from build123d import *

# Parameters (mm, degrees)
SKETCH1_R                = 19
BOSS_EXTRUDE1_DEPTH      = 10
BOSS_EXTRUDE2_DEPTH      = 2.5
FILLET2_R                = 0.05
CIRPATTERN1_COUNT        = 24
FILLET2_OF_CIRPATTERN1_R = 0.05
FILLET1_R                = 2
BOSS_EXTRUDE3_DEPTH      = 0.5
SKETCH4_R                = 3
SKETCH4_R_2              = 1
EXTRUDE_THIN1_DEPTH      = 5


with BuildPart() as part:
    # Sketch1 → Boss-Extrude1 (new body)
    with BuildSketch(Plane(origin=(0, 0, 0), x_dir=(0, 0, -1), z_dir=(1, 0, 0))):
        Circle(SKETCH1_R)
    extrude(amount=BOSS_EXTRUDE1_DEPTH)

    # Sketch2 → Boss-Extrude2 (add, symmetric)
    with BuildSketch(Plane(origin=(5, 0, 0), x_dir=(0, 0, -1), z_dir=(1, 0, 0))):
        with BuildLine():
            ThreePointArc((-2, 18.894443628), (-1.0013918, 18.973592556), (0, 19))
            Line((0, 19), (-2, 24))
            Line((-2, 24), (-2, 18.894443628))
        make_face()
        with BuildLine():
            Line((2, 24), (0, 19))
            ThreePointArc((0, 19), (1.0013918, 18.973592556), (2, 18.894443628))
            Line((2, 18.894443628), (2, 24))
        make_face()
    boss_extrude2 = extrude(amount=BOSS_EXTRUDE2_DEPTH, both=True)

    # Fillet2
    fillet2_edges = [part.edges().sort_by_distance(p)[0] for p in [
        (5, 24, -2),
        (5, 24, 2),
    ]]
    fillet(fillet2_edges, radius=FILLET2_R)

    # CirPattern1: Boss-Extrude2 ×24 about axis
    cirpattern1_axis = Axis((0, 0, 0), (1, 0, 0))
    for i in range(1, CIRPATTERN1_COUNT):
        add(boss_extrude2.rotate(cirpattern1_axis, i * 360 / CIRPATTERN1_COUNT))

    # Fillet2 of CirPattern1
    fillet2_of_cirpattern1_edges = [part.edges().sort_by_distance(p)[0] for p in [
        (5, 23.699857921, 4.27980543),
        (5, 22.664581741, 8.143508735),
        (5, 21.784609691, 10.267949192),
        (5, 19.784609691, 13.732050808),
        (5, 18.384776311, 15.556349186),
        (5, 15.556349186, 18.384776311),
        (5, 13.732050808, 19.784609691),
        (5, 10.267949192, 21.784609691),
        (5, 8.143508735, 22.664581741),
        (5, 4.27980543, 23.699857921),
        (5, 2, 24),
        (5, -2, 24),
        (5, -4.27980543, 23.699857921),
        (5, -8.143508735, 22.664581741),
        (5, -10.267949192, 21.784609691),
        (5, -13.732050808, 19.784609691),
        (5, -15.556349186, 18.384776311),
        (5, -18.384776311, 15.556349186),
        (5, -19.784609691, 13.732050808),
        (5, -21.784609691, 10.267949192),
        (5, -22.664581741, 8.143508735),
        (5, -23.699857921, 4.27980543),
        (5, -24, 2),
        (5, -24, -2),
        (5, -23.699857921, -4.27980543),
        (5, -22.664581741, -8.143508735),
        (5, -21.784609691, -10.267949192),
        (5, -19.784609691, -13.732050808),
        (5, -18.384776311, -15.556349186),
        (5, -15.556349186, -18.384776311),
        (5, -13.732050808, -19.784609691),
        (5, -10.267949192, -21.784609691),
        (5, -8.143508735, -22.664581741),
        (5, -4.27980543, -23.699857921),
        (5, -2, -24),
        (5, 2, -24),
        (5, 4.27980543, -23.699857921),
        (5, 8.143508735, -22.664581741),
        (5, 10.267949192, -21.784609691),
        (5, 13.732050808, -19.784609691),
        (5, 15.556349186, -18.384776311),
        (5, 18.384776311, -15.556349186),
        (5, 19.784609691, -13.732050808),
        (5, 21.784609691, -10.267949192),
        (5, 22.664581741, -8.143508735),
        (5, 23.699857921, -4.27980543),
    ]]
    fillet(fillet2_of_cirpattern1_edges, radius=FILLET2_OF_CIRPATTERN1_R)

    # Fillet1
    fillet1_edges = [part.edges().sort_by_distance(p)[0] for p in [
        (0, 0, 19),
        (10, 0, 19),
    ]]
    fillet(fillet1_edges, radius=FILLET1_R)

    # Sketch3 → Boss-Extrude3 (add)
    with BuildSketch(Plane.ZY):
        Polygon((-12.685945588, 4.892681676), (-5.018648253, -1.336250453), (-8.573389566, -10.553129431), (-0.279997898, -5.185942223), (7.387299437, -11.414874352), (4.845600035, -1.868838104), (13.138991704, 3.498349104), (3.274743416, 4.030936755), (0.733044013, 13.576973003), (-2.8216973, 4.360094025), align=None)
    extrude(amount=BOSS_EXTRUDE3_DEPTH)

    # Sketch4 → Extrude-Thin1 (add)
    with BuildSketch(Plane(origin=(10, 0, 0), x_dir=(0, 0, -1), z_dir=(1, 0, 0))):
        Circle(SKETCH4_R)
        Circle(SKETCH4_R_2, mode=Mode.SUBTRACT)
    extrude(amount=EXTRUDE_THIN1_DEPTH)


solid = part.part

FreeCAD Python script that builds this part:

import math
import FreeCAD as App
import Part
import Sketcher

V = App.Vector


def edges_at(feature, points):
    """Names of the edges that pass closest to the given points."""
    edges = feature.Shape.Edges
    near = lambda p: min(range(len(edges)), key=lambda i: edges[i].distToShape(Part.Vertex(*p))[0])
    return sorted({f"Edge{near(p) + 1}" for p in points})

doc = App.newDocument("Part")
body = doc.addObject("PartDesign::Body", "Body")

# Sketch on YZ plane
sketch1 = body.newObject("Sketcher::SketchObject", "Sketch")
sketch1.AttachmentSupport = (doc.getObject("YZ_Plane"), [""])
sketch1.MapMode = "FlatFace"
sketch1.addGeometry(Part.Circle(V(0, 0, 0), V(0, 0, 1), 19), False)
sketch1.addConstraint([
    Sketcher.Constraint("Coincident", 0, 3, -1, 1),
    Sketcher.Constraint("Diameter", 0, 38.0),
])
pad1 = body.newObject("PartDesign::Pad", "Pad")
pad1.Profile = sketch1
pad1.Length = 10

# Sketch on YZ plane
sketch2 = body.newObject("Sketcher::SketchObject", "Sketch001")
sketch2.AttachmentSupport = (doc.getObject("YZ_Plane"), [""])
sketch2.MapMode = "FlatFace"
sketch2.AttachmentOffset = App.Placement(V(0, 0, 5), App.Rotation())
sketch2.addGeometry([
    Part.ArcOfCircle(Part.Circle(V(0, 0, 0), V(0, 0, 1), 19), math.radians(0), math.radians(6.04)),  # 0
    Part.LineSegment(V(19, 0, 0), V(24, 2, 0)),  # 1
    Part.LineSegment(V(24, 2, 0), V(18.9, 2, 0)),  # 2
    Part.LineSegment(V(24, -2, 0), V(19, 0, 0)),  # 3
    Part.ArcOfCircle(Part.Circle(V(0, 0, 0), V(0, 0, 1), 19), math.radians(-6.04), math.radians(0)),  # 4
    Part.LineSegment(V(18.9, -2, 0), V(24, -2, 0)),  # 5
], False)
sketch2.addConstraint([
    Sketcher.Constraint("Coincident", 0, 1, 1, 1),
    Sketcher.Constraint("Coincident", 1, 2, 2, 1),
    Sketcher.Constraint("Coincident", 2, 2, 0, 2),
    Sketcher.Constraint("Coincident", 3, 2, 4, 2),
    Sketcher.Constraint("Coincident", 4, 1, 5, 1),
    Sketcher.Constraint("Coincident", 5, 2, 3, 1),
    Sketcher.Constraint("Horizontal", 2),
    Sketcher.Constraint("Horizontal", 5),
    Sketcher.Constraint("Coincident", 0, 3, -1, 1),
    Sketcher.Constraint("Coincident", 4, 3, -1, 1),
    Sketcher.Constraint("Coincident", 3, 2, 0, 1),
    Sketcher.Constraint("Symmetric", 1, 2, 5, 2, -1),
    Sketcher.Constraint("PointOnObject", 0, 1, -1),
    Sketcher.Constraint("Radius", 0, 19.0),
    Sketcher.Constraint("DistanceX", -1, 1, 1, 2, 24.0),
    Sketcher.Constraint("DistanceY", -1, 1, 1, 2, 2.0),
])
pad2 = body.newObject("PartDesign::Pad", "Pad001")
pad2.Profile = sketch2
pad2.Length = 5
pad2.Midplane = True
doc.recompute()

fillet = body.newObject("PartDesign::Fillet", "Fillet")
fillet.Base = (pad2, edges_at(pad2, [(5, 24, -2), (5, 24, 2)]))
fillet.Radius = 0.05
doc.recompute()

polarpattern = body.newObject("PartDesign::PolarPattern", "PolarPattern")
polarpattern.Originals = [pad2]
polarpattern.Axis = (doc.getObject("X_Axis"), [""])
polarpattern.Angle = 360
polarpattern.Occurrences = 24
body.Tip = polarpattern
doc.recompute()

fillet2 = body.newObject("PartDesign::Fillet", "Fillet001")
fillet2.Base = (polarpattern, edges_at(polarpattern, [
    (5, 23.7, 4.28),
    (5, 22.665, 8.144),
    (5, 21.785, 10.268),
    (5, 19.785, 13.732),
    (5, 18.385, 15.556),
    (5, 15.556, 18.385),
    (5, 13.732, 19.785),
    (5, 10.268, 21.785),
    (5, 8.144, 22.665),
    (5, 4.28, 23.7),
    (5, 2, 24),
    (5, -2, 24),
    (5, -4.28, 23.7),
    (5, -8.144, 22.665),
    (5, -10.268, 21.785),
    (5, -13.732, 19.785),
    (5, -15.556, 18.385),
    (5, -18.385, 15.556),
    (5, -19.785, 13.732),
    (5, -21.785, 10.268),
    (5, -22.665, 8.144),
    (5, -23.7, 4.28),
    (5, -24, 2),
    (5, -24, -2),
    (5, -23.7, -4.28),
    (5, -22.665, -8.144),
    (5, -21.785, -10.268),
    (5, -19.785, -13.732),
    (5, -18.385, -15.556),
    (5, -15.556, -18.385),
    (5, -13.732, -19.785),
    (5, -10.268, -21.785),
    (5, -8.144, -22.665),
    (5, -4.28, -23.7),
    (5, -2, -24),
    (5, 2, -24),
    (5, 4.28, -23.7),
    (5, 8.144, -22.665),
    (5, 10.268, -21.785),
    (5, 13.732, -19.785),
    (5, 15.556, -18.385),
    (5, 18.385, -15.556),
    (5, 19.785, -13.732),
    (5, 21.785, -10.268),
    (5, 22.665, -8.144),
    (5, 23.7, -4.28),
]))
fillet2.Radius = 0.05
doc.recompute()

fillet3 = body.newObject("PartDesign::Fillet", "Fillet002")
fillet3.Base = (fillet2, edges_at(fillet2, [(0, 0, 19), (10, 0, 19)]))
fillet3.Radius = 2

# Sketch on YZ plane
sketch3 = body.newObject("Sketcher::SketchObject", "Sketch002")
sketch3.AttachmentSupport = (doc.getObject("YZ_Plane"), [""])
sketch3.MapMode = "FlatFace"
sketch3.addGeometry([
    Part.LineSegment(V(5, -13, 0), V(-1, -5, 0)),  # 0
    Part.LineSegment(V(-1, -5, 0), V(-11, -9, 0)),  # 1
    Part.LineSegment(V(-11, -9, 0), V(-5, 0, 0)),  # 2
    Part.LineSegment(V(-5, 0, 0), V(-11, 7, 0)),  # 3
    Part.LineSegment(V(-11, 7, 0), V(-2, 5, 0)),  # 4
    Part.LineSegment(V(-2, 5, 0), V(3, 13, 0)),  # 5
    Part.LineSegment(V(3, 13, 0), V(4, 3, 0)),  # 6
    Part.LineSegment(V(4, 3, 0), V(14, 1, 0)),  # 7
    Part.LineSegment(V(14, 1, 0), V(4, -3, 0)),  # 8
    Part.LineSegment(V(4, -3, 0), V(5, -13, 0)),  # 9
], False)
sketch3.addConstraint([
    Sketcher.Constraint("Coincident", 0, 2, 1, 1),
    Sketcher.Constraint("Coincident", 1, 2, 2, 1),
    Sketcher.Constraint("Coincident", 2, 2, 3, 1),
    Sketcher.Constraint("Coincident", 3, 2, 4, 1),
    Sketcher.Constraint("Coincident", 4, 2, 5, 1),
    Sketcher.Constraint("Coincident", 5, 2, 6, 1),
    Sketcher.Constraint("Coincident", 6, 2, 7, 1),
    Sketcher.Constraint("Coincident", 7, 2, 8, 1),
    Sketcher.Constraint("Coincident", 8, 2, 9, 1),
    Sketcher.Constraint("Coincident", 9, 2, 0, 1),
    Sketcher.Constraint("Parallel", 0, 3),
    Sketcher.Constraint("Parallel", 2, 5),
    Sketcher.Constraint("Parallel", 4, 7),
    Sketcher.Constraint("Parallel", 1, 8),
    Sketcher.Constraint("Parallel", 6, 9),
    Sketcher.Constraint("Equal", 0, 1),
    Sketcher.Constraint("Equal", 1, 2),
    Sketcher.Constraint("Equal", 2, 3),
    Sketcher.Constraint("Equal", 3, 4),
    Sketcher.Constraint("Equal", 4, 5),
    Sketcher.Constraint("Equal", 5, 6),
    Sketcher.Constraint("Equal", 6, 7),
    Sketcher.Constraint("Equal", 7, 8),
    Sketcher.Constraint("Equal", 8, 9),
    Sketcher.Constraint("DistanceY", -1, 1, 3, 2, 7.387299),
    Sketcher.Constraint("DistanceY", -1, 1, 4, 2, 4.8456),
    Sketcher.Constraint("DistanceX", 0, 2, 5, 2, 4.8346),
    Sketcher.Constraint("DistanceX", 0, 2, -1, 1, 1.33625),
    Sketcher.Constraint("DistanceY", 0, 2, -1, 1, 5.018648),
    Sketcher.Constraint("DistanceX", 1, 2, -1, 1, 10.553129),
])
pad3 = body.newObject("PartDesign::Pad", "Pad002")
pad3.Profile = sketch3
pad3.Length = 0.5
pad3.Reversed = True

# Sketch on YZ plane
sketch4 = body.newObject("Sketcher::SketchObject", "Sketch003")
sketch4.AttachmentSupport = (doc.getObject("YZ_Plane"), [""])
sketch4.MapMode = "FlatFace"
sketch4.AttachmentOffset = App.Placement(V(0, 0, 10), App.Rotation())
sketch4.addGeometry([
    Part.Circle(V(0, 0, 0), V(0, 0, 1), 3),
    Part.Circle(V(0, 0, 0), V(0, 0, 1), 1),
], False)
sketch4.addConstraint([
    Sketcher.Constraint("Coincident", 0, 3, -1, 1),
    Sketcher.Constraint("Coincident", 1, 3, -1, 1),
    Sketcher.Constraint("Diameter", 0, 6.0),
    Sketcher.Constraint("Diameter", 1, 2.0),
])
pad4 = body.newObject("PartDesign::Pad", "Pad003")
pad4.Profile = sketch4
pad4.Length = 5

doc.recompute()
